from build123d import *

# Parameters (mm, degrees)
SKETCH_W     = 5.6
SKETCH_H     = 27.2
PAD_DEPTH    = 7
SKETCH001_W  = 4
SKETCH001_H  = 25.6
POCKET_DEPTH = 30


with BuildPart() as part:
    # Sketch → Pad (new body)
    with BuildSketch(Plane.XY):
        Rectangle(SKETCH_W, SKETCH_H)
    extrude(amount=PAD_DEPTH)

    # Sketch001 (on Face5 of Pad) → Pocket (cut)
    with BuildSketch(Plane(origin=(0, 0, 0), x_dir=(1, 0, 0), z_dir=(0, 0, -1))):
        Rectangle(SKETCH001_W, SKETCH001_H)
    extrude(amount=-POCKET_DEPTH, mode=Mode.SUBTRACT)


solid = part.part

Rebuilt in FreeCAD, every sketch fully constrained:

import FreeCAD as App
import Part
import Sketcher
Q = App.Units.Quantity

doc = App.newDocument("Part")
body = doc.addObject("PartDesign::Body", "Body")

sketch1 = doc.addObject("Sketcher::SketchObject", "Sketch")
body.addObject(sketch1)
sketch1.AttachmentSupport = (doc.XY_Plane, [""])
sketch1.MapMode = "FlatFace"
sketch1.addGeometry([
    Part.LineSegment(App.Vector(-3, 14, 0), App.Vector(-3, -14, 0)),
    Part.LineSegment(App.Vector(-3, -14, 0), App.Vector(3, -14, 0)),
    Part.LineSegment(App.Vector(3, -14, 0), App.Vector(3, 14, 0)),
    Part.LineSegment(App.Vector(3, 14, 0), App.Vector(-3, 14, 0)),
], False)
sketch1.addConstraint([
    Sketcher.Constraint("Coincident", 0, 2, 1, 1),
    Sketcher.Constraint("Coincident", 1, 2, 2, 1),
    Sketcher.Constraint("Coincident", 2, 2, 3, 1),
    Sketcher.Constraint("Coincident", 3, 2, 0, 1),
    Sketcher.Constraint("Vertical", 0),
    Sketcher.Constraint("Horizontal", 1),
    Sketcher.Constraint("Vertical", 2),
    Sketcher.Constraint("Horizontal", 3),
    Sketcher.Constraint("Symmetric", 0, 2, 2, 2, -1, 1),
    Sketcher.Constraint("DistanceX", 1, 1, 1, 2, Q("5.6 mm")),
    Sketcher.Constraint("DistanceY", 0, 2, 0, 1, Q("27.2 mm")),
])
pad1 = doc.addObject("PartDesign::Pad", "Pad")
body.addObject(pad1)
pad1.Profile = sketch1
pad1.Length = 7

sketch2 = doc.addObject("Sketcher::SketchObject", "Sketch001")
body.addObject(sketch2)
sketch2.AttachmentSupport = (doc.XY_Plane, [""])
sketch2.MapMode = "FlatFace"
sketch2.addGeometry([
    Part.LineSegment(App.Vector(-2, -12.8, 0), App.Vector(-2, 12.8, 0)),
    Part.LineSegment(App.Vector(-2, 12.8, 0), App.Vector(2, 12.8, 0)),
    Part.LineSegment(App.Vector(2, 12.8, 0), App.Vector(2, -12.8, 0)),
    Part.LineSegment(App.Vector(2, -12.8, 0), App.Vector(-2, -12.8, 0)),
], False)
sketch2.addConstraint([
    Sketcher.Constraint("Coincident", 0, 2, 1, 1),
    Sketcher.Constraint("Coincident", 1, 2, 2, 1),
    Sketcher.Constraint("Coincident", 2, 2, 3, 1),
    Sketcher.Constraint("Coincident", 3, 2, 0, 1),
    Sketcher.Constraint("Vertical", 0),
    Sketcher.Constraint("Horizontal", 1),
    Sketcher.Constraint("Vertical", 2),
    Sketcher.Constraint("Horizontal", 3),
    Sketcher.Constraint("Symmetric", 0, 2, 2, 2, -1, 1),
    Sketcher.Constraint("DistanceX", 1, 1, 1, 2, Q("4 mm")),
    Sketcher.Constraint("DistanceY", 0, 1, 0, 2, Q("25.6 mm")),
])
pocket1 = doc.addObject("PartDesign::Pocket", "Pocket")
body.addObject(pocket1)
pocket1.Profile = sketch2
pocket1.Length = 30
pocket1.Reversed = True

doc.recompute()
